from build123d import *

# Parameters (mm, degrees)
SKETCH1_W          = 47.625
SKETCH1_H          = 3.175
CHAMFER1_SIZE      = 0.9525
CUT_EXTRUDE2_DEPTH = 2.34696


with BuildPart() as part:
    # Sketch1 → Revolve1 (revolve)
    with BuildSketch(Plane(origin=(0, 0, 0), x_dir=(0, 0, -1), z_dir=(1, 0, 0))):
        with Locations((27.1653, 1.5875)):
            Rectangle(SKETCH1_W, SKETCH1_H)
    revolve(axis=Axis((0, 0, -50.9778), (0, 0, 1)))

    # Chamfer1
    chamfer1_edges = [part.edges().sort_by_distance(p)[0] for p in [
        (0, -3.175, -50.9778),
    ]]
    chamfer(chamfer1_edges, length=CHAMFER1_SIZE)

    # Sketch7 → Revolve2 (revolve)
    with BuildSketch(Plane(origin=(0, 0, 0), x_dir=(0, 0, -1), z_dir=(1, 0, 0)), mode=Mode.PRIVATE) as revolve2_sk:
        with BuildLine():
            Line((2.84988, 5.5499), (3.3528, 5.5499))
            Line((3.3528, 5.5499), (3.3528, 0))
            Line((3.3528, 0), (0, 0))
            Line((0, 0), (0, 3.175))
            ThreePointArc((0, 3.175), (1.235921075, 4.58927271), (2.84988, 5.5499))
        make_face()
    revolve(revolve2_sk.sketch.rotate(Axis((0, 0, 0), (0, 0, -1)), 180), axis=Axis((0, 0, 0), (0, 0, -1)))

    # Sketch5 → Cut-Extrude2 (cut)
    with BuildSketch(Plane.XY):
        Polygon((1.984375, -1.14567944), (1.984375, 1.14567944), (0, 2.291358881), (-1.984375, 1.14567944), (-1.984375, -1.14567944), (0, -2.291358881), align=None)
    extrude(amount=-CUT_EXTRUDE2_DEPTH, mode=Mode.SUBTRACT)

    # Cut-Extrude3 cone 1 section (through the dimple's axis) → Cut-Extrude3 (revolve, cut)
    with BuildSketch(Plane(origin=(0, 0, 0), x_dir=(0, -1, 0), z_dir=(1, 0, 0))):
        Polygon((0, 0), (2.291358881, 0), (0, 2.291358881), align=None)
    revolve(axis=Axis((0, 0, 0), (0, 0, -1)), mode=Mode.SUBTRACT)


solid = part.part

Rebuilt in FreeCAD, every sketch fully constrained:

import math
import FreeCAD as App
import Part
import Sketcher
Q = App.Units.Quantity


def edges_at(feature, points):
    """Names of the edges that pass closest to the given points."""
    edges = feature.Shape.Edges
    near = lambda p: min(range(len(edges)), key=lambda i: edges[i].distToShape(Part.Vertex(*p))[0])
    return sorted({f"Edge{near(p) + 1}" for p in points})


def add_polygon(sketch, points):
    """Adds a closed chain of lines whose ends are joined by coincident constraints."""
    first, n = sketch.GeometryCount, len(points)
    for a, b in zip(points, points[1:] + points[:1]):
        sketch.addGeometry(Part.LineSegment(App.Vector(*a, 0), App.Vector(*b, 0)), False)
    for i in range(n):
        sketch.addConstraint(Sketcher.Constraint("Coincident", first + i, 2, first + (i + 1) % n, 1))

doc = App.newDocument("Part")
params = doc.addObject("Spreadsheet::Sheet", "Params")
for row, (alias, value) in enumerate([
    ("sketch1_width", "0.125 in"),
    ("sketch1_height", "1.875 in"),
    ("revolution_angle", "360 deg"),
    ("chamfer_size", "0.0375 in"),
    ("sketch2_width", "0.125 in"),
    ("sketch2_height", "0.132 in"),
    ("revolution2_angle", "360 deg"),
    ("pocket1_length", "0.0924 in"),
    ("groove_angle", "360 deg"),
], start=1):
    params.set(f"A{row}", alias)
    params.set(f"B{row}", "=" + value)
    params.setAlias(f"B{row}", alias)

body = doc.addObject("PartDesign::Body", "Body")

# Sketch on YZ plane
sketch1 = doc.addObject("Sketcher::SketchObject", "Sketch")
body.addObject(sketch1)
sketch1.AttachmentSupport = (doc.YZ_Plane, [""])
sketch1.MapMode = "FlatFace"
add_polygon(sketch1, [(3.2, -3.4), (0, -3.4), (0, -51), (3.2, -51)])  # lines 0-3
sketch1.addConstraint(Sketcher.Constraint("Horizontal", 0))
sketch1.addConstraint(Sketcher.Constraint("Vertical", 1))
sketch1.addConstraint(Sketcher.Constraint("Horizontal", 2))
sketch1.addConstraint(Sketcher.Constraint("Vertical", 3))
sketch1.addConstraint(Sketcher.Constraint("PointOnObject", 0, 2, -2))
sketch1.addConstraint(Sketcher.Constraint("DistanceX", 0, 2, 0, 1, Q("0.125 in")))
sketch1.addConstraint(Sketcher.Constraint("DistanceY", 1, 2, 1, 1, Q("1.875 in")))
sketch1.addConstraint(Sketcher.Constraint("DistanceY", 0, 2, -1, 1, Q("0.132 in")))
sketch1.setExpression("Constraints[9]", "Params.sketch1_width")
sketch1.setExpression("Constraints[10]", "Params.sketch1_height")
revolution = doc.addObject("PartDesign::Revolution", "Revolution")
body.addObject(revolution)
revolution.Profile = sketch1
revolution.ReferenceAxis = (sketch1, ["V_Axis"])
revolution.setExpression("Angle", "Params.revolution_angle")
doc.recompute()

chamfer = doc.addObject("PartDesign::Chamfer", "Chamfer")
body.addObject(chamfer)
chamfer.Base = (revolution, edges_at(revolution, [(0, -3.175, -50.978)]))
chamfer.setExpression("Size", "Params.chamfer_size")

# Sketch on YZ plane
sketch2 = doc.addObject("Sketcher::SketchObject", "Sketch001")
body.addObject(sketch2)
sketch2.AttachmentSupport = (doc.YZ_Plane, [""])
sketch2.MapMode = "FlatFace"
sketch2.addGeometry(Part.LineSegment(App.Vector(5.5, -3.4, 0), App.Vector(5.5, -2.8, 0)), False)
sketch2.addGeometry(Part.ArcOfCircle(Part.Circle(App.Vector(0, -5.1, 0), App.Vector(0, 0, 1), 6), math.radians(22), math.radians(58)), False)
sketch2.addGeometry(Part.LineSegment(App.Vector(3.2, 0, 0), App.Vector(0, 0, 0)), False)
sketch2.addGeometry(Part.LineSegment(App.Vector(0, 0, 0), App.Vector(0, -3.4, 0)), False)
sketch2.addGeometry(Part.LineSegment(App.Vector(0, -3.4, 0), App.Vector(5.5, -3.4, 0)), False)
sketch2.addConstraint(Sketcher.Constraint("Coincident", 0, 2, 1, 1))
sketch2.addConstraint(Sketcher.Constraint("Coincident", 1, 2, 2, 1))
sketch2.addConstraint(Sketcher.Constraint("Coincident", 2, 2, 3, 1))
sketch2.addConstraint(Sketcher.Constraint("Coincident", 3, 2, 4, 1))
sketch2.addConstraint(Sketcher.Constraint("Coincident", 4, 2, 0, 1))
sketch2.addConstraint(Sketcher.Constraint("Vertical", 0))
sketch2.addConstraint(Sketcher.Constraint("Horizontal", 2))
sketch2.addConstraint(Sketcher.Constraint("Vertical", 3))
sketch2.addConstraint(Sketcher.Constraint("Horizontal", 4))
sketch2.addConstraint(Sketcher.Constraint("Coincident", 2, 2, -1, 1))
sketch2.addConstraint(Sketcher.Constraint("PointOnObject", 1, 3, -2))
sketch2.addConstraint(Sketcher.Constraint("DistanceX", 2, 2, 2, 1, Q("0.125 in")))
sketch2.addConstraint(Sketcher.Constraint("DistanceY", 3, 2, 3, 1, Q("0.132 in")))
sketch2.addConstraint(Sketcher.Constraint("DistanceX", 4, 1, 4, 2, Q("0.2185 in")))
sketch2.addConstraint(Sketcher.Constraint("DistanceY", 0, 1, 0, 2, Q("0.0198 in")))
sketch2.setExpression("Constraints[11]", "Params.sketch2_width")
sketch2.setExpression("Constraints[12]", "Params.sketch2_height")
revolution2 = doc.addObject("PartDesign::Revolution", "Revolution001")
body.addObject(revolution2)
revolution2.Profile = sketch2
revolution2.ReferenceAxis = (sketch2, ["V_Axis"])
revolution2.setExpression("Angle", "Params.revolution2_angle")

# Sketch on XY plane
sketch3 = doc.addObject("Sketcher::SketchObject", "Sketch002")
body.addObject(sketch3)
sketch3.AttachmentSupport = (doc.XY_Plane, [""])
sketch3.MapMode = "FlatFace"
add_polygon(sketch3, [(2, -1.1), (2, 1.1), (0, 2.3), (-2, 1.1), (-2, -1.1), (0, -2.3)])  # lines 0-5
sketch3.addConstraint(Sketcher.Constraint("Vertical", 0))
sketch3.addConstraint(Sketcher.Constraint("Vertical", 3))
sketch3.addConstraint(Sketcher.Constraint("Symmetric", 0, 2, 3, 2, -1, 1))
sketch3.addConstraint(Sketcher.Constraint("Symmetric", 1, 2, 4, 2, -1, 1))
sketch3.addConstraint(Sketcher.Constraint("PointOnObject", 1, 2, -2))
sketch3.addConstraint(Sketcher.Constraint("Parallel", 2, 5))
sketch3.addConstraint(Sketcher.Constraint("Horizontal", 0, 2, 2, 2))
sketch3.addConstraint(Sketcher.Constraint("Angle", 1, Q("150 deg")))
sketch3.addConstraint(Sketcher.Constraint("DistanceX", -1, 1, 0, 2, Q("0.078125 in")))
sketch3.addConstraint(Sketcher.Constraint("DistanceY", 0, 1, 0, 2, 2.291359))
pocket1 = doc.addObject("PartDesign::Pocket", "Pocket")
body.addObject(pocket1)
pocket1.Profile = sketch3
pocket1.setExpression("Length", "Params.pocket1_length")

# Sketch on YZ plane
sketch4 = doc.addObject("Sketcher::SketchObject", "Sketch003")
body.addObject(sketch4)
sketch4.AttachmentSupport = (doc.YZ_Plane, [""])
sketch4.MapMode = "FlatFace"
add_polygon(sketch4, [(0, 0), (-2.3, 0), (0, -2.3)])  # lines 0-2
sketch4.addConstraint(Sketcher.Constraint("Horizontal", 0))
sketch4.addConstraint(Sketcher.Constraint("Vertical", 2))
sketch4.addConstraint(Sketcher.Constraint("Coincident", 2, 2, -1, 1))
sketch4.addConstraint(Sketcher.Constraint("Equal", 0, 2))
sketch4.addConstraint(Sketcher.Constraint("DistanceX", 0, 2, 0, 1, 2.291359))
groove = doc.addObject("PartDesign::Groove", "Groove")
body.addObject(groove)
groove.Profile = sketch4
groove.ReferenceAxis = (sketch4, ["V_Axis"])
groove.setExpression("Angle", "Params.groove_angle")

doc.recompute()
